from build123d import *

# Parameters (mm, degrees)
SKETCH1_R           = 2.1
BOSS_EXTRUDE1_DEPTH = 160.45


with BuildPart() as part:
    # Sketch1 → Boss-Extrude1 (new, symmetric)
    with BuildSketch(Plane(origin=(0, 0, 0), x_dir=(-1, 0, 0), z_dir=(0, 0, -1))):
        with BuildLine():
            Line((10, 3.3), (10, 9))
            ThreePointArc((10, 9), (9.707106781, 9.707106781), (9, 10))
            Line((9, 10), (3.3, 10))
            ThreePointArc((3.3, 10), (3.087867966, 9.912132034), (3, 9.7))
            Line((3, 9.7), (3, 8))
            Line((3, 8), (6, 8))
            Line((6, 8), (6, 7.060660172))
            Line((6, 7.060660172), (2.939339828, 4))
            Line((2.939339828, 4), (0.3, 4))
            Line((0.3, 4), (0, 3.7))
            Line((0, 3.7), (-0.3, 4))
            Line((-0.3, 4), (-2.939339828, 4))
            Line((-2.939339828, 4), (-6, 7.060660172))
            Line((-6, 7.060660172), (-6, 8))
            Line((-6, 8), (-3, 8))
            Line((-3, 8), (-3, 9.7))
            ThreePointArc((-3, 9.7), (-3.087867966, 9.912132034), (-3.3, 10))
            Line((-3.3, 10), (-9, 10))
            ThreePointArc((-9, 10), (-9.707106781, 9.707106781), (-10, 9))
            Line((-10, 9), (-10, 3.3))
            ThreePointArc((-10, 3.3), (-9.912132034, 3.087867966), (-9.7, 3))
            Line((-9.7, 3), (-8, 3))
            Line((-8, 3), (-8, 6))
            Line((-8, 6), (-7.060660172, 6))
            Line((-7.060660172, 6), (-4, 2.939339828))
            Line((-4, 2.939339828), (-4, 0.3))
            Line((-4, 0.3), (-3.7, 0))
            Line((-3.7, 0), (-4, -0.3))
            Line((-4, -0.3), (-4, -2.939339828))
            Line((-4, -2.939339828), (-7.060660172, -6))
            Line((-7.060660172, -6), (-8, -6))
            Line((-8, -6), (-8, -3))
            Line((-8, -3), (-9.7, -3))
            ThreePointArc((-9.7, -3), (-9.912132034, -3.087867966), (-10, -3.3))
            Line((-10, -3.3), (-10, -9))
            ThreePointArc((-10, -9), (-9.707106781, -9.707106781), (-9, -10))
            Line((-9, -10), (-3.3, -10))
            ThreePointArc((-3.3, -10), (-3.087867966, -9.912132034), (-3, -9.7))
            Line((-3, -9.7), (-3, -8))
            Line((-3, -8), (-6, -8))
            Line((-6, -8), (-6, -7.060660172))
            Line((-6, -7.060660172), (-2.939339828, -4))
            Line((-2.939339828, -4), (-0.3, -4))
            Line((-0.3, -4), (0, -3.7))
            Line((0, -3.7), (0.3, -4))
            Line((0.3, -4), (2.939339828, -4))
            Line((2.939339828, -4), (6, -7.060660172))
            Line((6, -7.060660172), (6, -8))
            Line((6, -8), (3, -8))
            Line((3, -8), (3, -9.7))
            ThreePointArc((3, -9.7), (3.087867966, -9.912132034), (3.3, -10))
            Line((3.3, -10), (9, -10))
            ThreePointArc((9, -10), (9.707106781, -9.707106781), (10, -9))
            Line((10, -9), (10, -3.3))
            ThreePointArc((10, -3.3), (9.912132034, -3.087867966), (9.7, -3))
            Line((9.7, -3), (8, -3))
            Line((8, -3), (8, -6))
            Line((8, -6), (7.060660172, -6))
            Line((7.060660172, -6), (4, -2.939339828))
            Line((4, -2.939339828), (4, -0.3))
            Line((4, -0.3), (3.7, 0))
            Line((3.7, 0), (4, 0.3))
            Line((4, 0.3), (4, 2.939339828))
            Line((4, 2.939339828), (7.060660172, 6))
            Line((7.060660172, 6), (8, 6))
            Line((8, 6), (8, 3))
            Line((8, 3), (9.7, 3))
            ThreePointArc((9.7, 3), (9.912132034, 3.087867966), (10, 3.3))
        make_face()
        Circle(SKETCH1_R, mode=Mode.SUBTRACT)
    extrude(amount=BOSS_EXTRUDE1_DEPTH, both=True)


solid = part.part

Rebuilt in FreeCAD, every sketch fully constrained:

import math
import FreeCAD as App
import Part
import Sketcher

V = App.Vector
Q = App.Units.Quantity

doc = App.newDocument("Part")
body = doc.addObject("PartDesign::Body", "Body")

sketch1 = body.newObject("Sketcher::SketchObject", "Sketch")
sketch1.AttachmentSupport = (doc.getObject("XY_Plane"), [""])
sketch1.MapMode = "FlatFace"
sketch1.addGeometry([
    Part.LineSegment(V(-10, 3.3, 0), V(-10, 9, 0)),
    Part.ArcOfCircle(Part.Circle(V(-9, 9, 0), V(0, 0, 1), 1), math.radians(90), math.radians(180)),
    Part.LineSegment(V(-9, 10, 0), V(-3.3, 10, 0)),
    Part.ArcOfCircle(Part.Circle(V(-3.3, 9.7, 0), V(0, 0, 1), 0.3), math.radians(0), math.radians(90)),
    Part.LineSegment(V(-3, 9.7, 0), V(-3, 8, 0)),
    Part.LineSegment(V(-3, 8, 0), V(-6, 8, 0)),
    Part.LineSegment(V(-6, 8, 0), V(-6, 7.06, 0)),
    Part.LineSegment(V(-6, 7.06, 0), V(-2.94, 4, 0)),
    Part.LineSegment(V(-2.94, 4, 0), V(-0.3, 4, 0)),
    Part.LineSegment(V(-0.3, 4, 0), V(0, 3.7, 0)),
    Part.LineSegment(V(0, 3.7, 0), V(0.3, 4, 0)),
    Part.LineSegment(V(0.3, 4, 0), V(2.94, 4, 0)),
    Part.LineSegment(V(2.94, 4, 0), V(6, 7.06, 0)),
    Part.LineSegment(V(6, 7.06, 0), V(6, 8, 0)),
    Part.LineSegment(V(6, 8, 0), V(3, 8, 0)),
    Part.LineSegment(V(3, 8, 0), V(3, 9.7, 0)),
    Part.ArcOfCircle(Part.Circle(V(3.3, 9.7, 0), V(0, 0, 1), 0.3), math.radians(90), math.radians(180)),
    Part.LineSegment(V(3.3, 10, 0), V(9, 10, 0)),
    Part.ArcOfCircle(Part.Circle(V(9, 9, 0), V(0, 0, 1), 1), math.radians(0), math.radians(90)),
    Part.LineSegment(V(10, 9, 0), V(10, 3.3, 0)),
    Part.ArcOfCircle(Part.Circle(V(9.7, 3.3, 0), V(0, 0, 1), 0.3), math.radians(-90), math.radians(0)),
    Part.LineSegment(V(9.7, 3, 0), V(8, 3, 0)),
    Part.LineSegment(V(8, 3, 0), V(8, 6, 0)),
    Part.LineSegment(V(8, 6, 0), V(7.06, 6, 0)),
    Part.LineSegment(V(7.06, 6, 0), V(4, 2.94, 0)),
    Part.LineSegment(V(4, 2.94, 0), V(4, 0.3, 0)),
    Part.LineSegment(V(4, 0.3, 0), V(3.7, 0, 0)),
    Part.LineSegment(V(3.7, 0, 0), V(4, -0.3, 0)),
    Part.LineSegment(V(4, -0.3, 0), V(4, -2.94, 0)),
    Part.LineSegment(V(4, -2.94, 0), V(7.06, -6, 0)),
    Part.LineSegment(V(7.06, -6, 0), V(8, -6, 0)),
    Part.LineSegment(V(8, -6, 0), V(8, -3, 0)),
    Part.LineSegment(V(8, -3, 0), V(9.7, -3, 0)),
    Part.ArcOfCircle(Part.Circle(V(9.7, -3.3, 0), V(0, 0, 1), 0.3), math.radians(0), math.radians(90)),
    Part.LineSegment(V(10, -3.3, 0), V(10, -9, 0)),
    Part.ArcOfCircle(Part.Circle(V(9, -9, 0), V(0, 0, 1), 1), math.radians(-90), math.radians(0)),
    Part.LineSegment(V(9, -10, 0), V(3.3, -10, 0)),
    Part.ArcOfCircle(Part.Circle(V(3.3, -9.7, 0), V(0, 0, 1), 0.3), math.radians(-180), math.radians(-90)),
    Part.LineSegment(V(3, -9.7, 0), V(3, -8, 0)),
    Part.LineSegment(V(3, -8, 0), V(6, -8, 0)),
    Part.LineSegment(V(6, -8, 0), V(6, -7.06, 0)),
    Part.LineSegment(V(6, -7.06, 0), V(2.94, -4, 0)),
    Part.LineSegment(V(2.94, -4, 0), V(0.3, -4, 0)),
    Part.LineSegment(V(0.3, -4, 0), V(0, -3.7, 0)),
    Part.LineSegment(V(0, -3.7, 0), V(-0.3, -4, 0)),
    Part.LineSegment(V(-0.3, -4, 0), V(-2.94, -4, 0)),
    Part.LineSegment(V(-2.94, -4, 0), V(-6, -7.06, 0)),
    Part.LineSegment(V(-6, -7.06, 0), V(-6, -8, 0)),
    Part.LineSegment(V(-6, -8, 0), V(-3, -8, 0)),
    Part.LineSegment(V(-3, -8, 0), V(-3, -9.7, 0)),
    Part.ArcOfCircle(Part.Circle(V(-3.3, -9.7, 0), V(0, 0, 1), 0.3), math.radians(-90), math.radians(0)),
    Part.LineSegment(V(-3.3, -10, 0), V(-9, -10, 0)),
    Part.ArcOfCircle(Part.Circle(V(-9, -9, 0), V(0, 0, 1), 1), math.radians(-180), math.radians(-90)),
    Part.LineSegment(V(-10, -9, 0), V(-10, -3.3, 0)),
    Part.ArcOfCircle(Part.Circle(V(-9.7, -3.3, 0), V(0, 0, 1), 0.3), math.radians(90), math.radians(180)),
    Part.LineSegment(V(-9.7, -3, 0), V(-8, -3, 0)),
    Part.LineSegment(V(-8, -3, 0), V(-8, -6, 0)),
    Part.LineSegment(V(-8, -6, 0), V(-7.06, -6, 0)),
    Part.LineSegment(V(-7.06, -6, 0), V(-4, -2.94, 0)),
    Part.LineSegment(V(-4, -2.94, 0), V(-4, -0.3, 0)),
    Part.LineSegment(V(-4, -0.3, 0), V(-3.7, 0, 0)),
    Part.LineSegment(V(-3.7, 0, 0), V(-4, 0.3, 0)),
    Part.LineSegment(V(-4, 0.3, 0), V(-4, 2.94, 0)),
    Part.LineSegment(V(-4, 2.94, 0), V(-7.06, 6, 0)),
    Part.LineSegment(V(-7.06, 6, 0), V(-8, 6, 0)),
    Part.LineSegment(V(-8, 6, 0), V(-8, 3, 0)),
    Part.LineSegment(V(-8, 3, 0), V(-9.7, 3, 0)),
    Part.ArcOfCircle(Part.Circle(V(-9.7, 3.3, 0), V(0, 0, 1), 0.3), math.radians(-180), math.radians(-90)),
    Part.Circle(V(0, 0, 0), V(0, 0, 1), 2.1),
], False)
sketch1.addConstraint([
    Sketcher.Constraint("Tangent", 0, 2, 1, 2),
    Sketcher.Constraint("Tangent", 1, 1, 2, 1),
    Sketcher.Constraint("Tangent", 2, 2, 3, 2),
    Sketcher.Constraint("Tangent", 3, 1, 4, 1),
    Sketcher.Constraint("Coincident", 4, 2, 5, 1),
    Sketcher.Constraint("Coincident", 5, 2, 6, 1),
    Sketcher.Constraint("Coincident", 6, 2, 7, 1),
    Sketcher.Constraint("Coincident", 7, 2, 8, 1),
    Sketcher.Constraint("Coincident", 8, 2, 9, 1),
    Sketcher.Constraint("Coincident", 9, 2, 10, 1),
    Sketcher.Constraint("Coincident", 10, 2, 11, 1),
    Sketcher.Constraint("Coincident", 11, 2, 12, 1),
    Sketcher.Constraint("Coincident", 12, 2, 13, 1),
    Sketcher.Constraint("Coincident", 13, 2, 14, 1),
    Sketcher.Constraint("Coincident", 14, 2, 15, 1),
    Sketcher.Constraint("Tangent", 15, 2, 16, 2),
    Sketcher.Constraint("Tangent", 16, 1, 17, 1),
    Sketcher.Constraint("Tangent", 17, 2, 18, 2),
    Sketcher.Constraint("Tangent", 18, 1, 19, 1),
    Sketcher.Constraint("Tangent", 19, 2, 20, 2),
    Sketcher.Constraint("Tangent", 20, 1, 21, 1),
    Sketcher.Constraint("Coincident", 21, 2, 22, 1),
    Sketcher.Constraint("Coincident", 22, 2, 23, 1),
    Sketcher.Constraint("Coincident", 23, 2, 24, 1),
    Sketcher.Constraint("Coincident", 24, 2, 25, 1),
    Sketcher.Constraint("Coincident", 25, 2, 26, 1),
    Sketcher.Constraint("Coincident", 26, 2, 27, 1),
    Sketcher.Constraint("Coincident", 27, 2, 28, 1),
    Sketcher.Constraint("Coincident", 28, 2, 29, 1),
    Sketcher.Constraint("Coincident", 29, 2, 30, 1),
    Sketcher.Constraint("Coincident", 30, 2, 31, 1),
    Sketcher.Constraint("Coincident", 31, 2, 32, 1),
    Sketcher.Constraint("Tangent", 32, 2, 33, 2),
    Sketcher.Constraint("Tangent", 33, 1, 34, 1),
    Sketcher.Constraint("Tangent", 34, 2, 35, 2),
    Sketcher.Constraint("Tangent", 35, 1, 36, 1),
    Sketcher.Constraint("Tangent", 36, 2, 37, 2),
    Sketcher.Constraint("Tangent", 37, 1, 38, 1),
    Sketcher.Constraint("Coincident", 38, 2, 39, 1),
    Sketcher.Constraint("Coincident", 39, 2, 40, 1),
    Sketcher.Constraint("Coincident", 40, 2, 41, 1),
    Sketcher.Constraint("Coincident", 41, 2, 42, 1),
    Sketcher.Constraint("Coincident", 42, 2, 43, 1),
    Sketcher.Constraint("Coincident", 43, 2, 44, 1),
    Sketcher.Constraint("Coincident", 44, 2, 45, 1),
    Sketcher.Constraint("Coincident", 45, 2, 46, 1),
    Sketcher.Constraint("Coincident", 46, 2, 47, 1),
    Sketcher.Constraint("Coincident", 47, 2, 48, 1),
    Sketcher.Constraint("Coincident", 48, 2, 49, 1),
    Sketcher.Constraint("Tangent", 49, 2, 50, 2),
    Sketcher.Constraint("Tangent", 50, 1, 51, 1),
    Sketcher.Constraint("Tangent", 51, 2, 52, 2),
    Sketcher.Constraint("Tangent", 52, 1, 53, 1),
    Sketcher.Constraint("Tangent", 53, 2, 54, 2),
    Sketcher.Constraint("Tangent", 54, 1, 55, 1),
    Sketcher.Constraint("Coincident", 55, 2, 56, 1),
    Sketcher.Constraint("Coincident", 56, 2, 57, 1),
    Sketcher.Constraint("Coincident", 57, 2, 58, 1),
    Sketcher.Constraint("Coincident", 58, 2, 59, 1),
    Sketcher.Constraint("Coincident", 59, 2, 60, 1),
    Sketcher.Constraint("Coincident", 60, 2, 61, 1),
    Sketcher.Constraint("Coincident", 61, 2, 62, 1),
    Sketcher.Constraint("Coincident", 62, 2, 63, 1),
    Sketcher.Constraint("Coincident", 63, 2, 64, 1),
    Sketcher.Constraint("Coincident", 64, 2, 65, 1),
    Sketcher.Constraint("Coincident", 65, 2, 66, 1),
    Sketcher.Constraint("Tangent", 66, 2, 67, 2),
    Sketcher.Constraint("Tangent", 67, 1, 0, 1),
    Sketcher.Constraint("Vertical", 0),
    Sketcher.Constraint("Horizontal", 2),
    Sketcher.Constraint("Vertical", 4),
    Sketcher.Constraint("Horizontal", 5),
    Sketcher.Constraint("Vertical", 6),
    Sketcher.Constraint("Horizontal", 8),
    Sketcher.Constraint("Horizontal", 11),
    Sketcher.Constraint("Vertical", 13),
    Sketcher.Constraint("Horizontal", 14),
    Sketcher.Constraint("Vertical", 15),
    Sketcher.Constraint("Horizontal", 17),
    Sketcher.Constraint("Vertical", 19),
    Sketcher.Constraint("Horizontal", 21),
    Sketcher.Constraint("Vertical", 22),
    Sketcher.Constraint("Horizontal", 23),
    Sketcher.Constraint("Vertical", 25),
    Sketcher.Constraint("Vertical", 28),
    Sketcher.Constraint("Horizontal", 30),
    Sketcher.Constraint("Vertical", 31),
    Sketcher.Constraint("Horizontal", 32),
    Sketcher.Constraint("Vertical", 34),
    Sketcher.Constraint("Horizontal", 36),
    Sketcher.Constraint("Vertical", 38),
    Sketcher.Constraint("Horizontal", 39),
    Sketcher.Constraint("Vertical", 40),
    Sketcher.Constraint("Horizontal", 42),
    Sketcher.Constraint("Horizontal", 45),
    Sketcher.Constraint("Vertical", 47),
    Sketcher.Constraint("Horizontal", 48),
    Sketcher.Constraint("Vertical", 49),
    Sketcher.Constraint("Horizontal", 51),
    Sketcher.Constraint("Vertical", 53),
    Sketcher.Constraint("Horizontal", 55),
    Sketcher.Constraint("Vertical", 56),
    Sketcher.Constraint("Horizontal", 57),
    Sketcher.Constraint("Vertical", 59),
    Sketcher.Constraint("Vertical", 62),
    Sketcher.Constraint("Horizontal", 64),
    Sketcher.Constraint("Vertical", 65),
    Sketcher.Constraint("Horizontal", 66),
    Sketcher.Constraint("Coincident", 68, 3, -1, 1),
    Sketcher.Constraint("Equal", 3, 16),
    Sketcher.Constraint("Equal", 1, 18),
    Sketcher.Constraint("Equal", 16, 20),
    Sketcher.Constraint("Equal", 20, 33),
    Sketcher.Constraint("Equal", 18, 35),
    Sketcher.Constraint("Equal", 33, 37),
    Sketcher.Constraint("Equal", 37, 50),
    Sketcher.Constraint("Equal", 35, 52),
    Sketcher.Constraint("Equal", 50, 54),
    Sketcher.Constraint("Equal", 54, 67),
    Sketcher.Constraint("Symmetric", 1, 3, 35, 3, -1, 1),
    Sketcher.Constraint("Symmetric", 16, 3, 50, 3, -1, 1),
    Sketcher.Constraint("Symmetric", 20, 3, 54, 3, -1, 1),
    Sketcher.Constraint("Symmetric", 4, 2, 38, 2, -1, 1),
    Sketcher.Constraint("Symmetric", 6, 2, 40, 2, -1, 1),
    Sketcher.Constraint("Symmetric", 7, 2, 41, 2, -1, 1),
    Sketcher.Constraint("Symmetric", 9, 2, 43, 2, -1, 1),
    Sketcher.Constraint("Symmetric", 10, 2, 44, 2, -1, 1),
    Sketcher.Constraint("Symmetric", 12, 2, 46, 2, -1, 1),
    Sketcher.Constraint("Symmetric", 22, 2, 56, 2, -1, 1),
    Sketcher.Constraint("Symmetric", 24, 2, 58, 2, -1, 1),
    Sketcher.Constraint("Symmetric", 26, 2, 60, 2, -1, 1),
    Sketcher.Constraint("Symmetric", 27, 2, 61, 2, -1, 1),
    Sketcher.Constraint("Symmetric", 29, 2, 63, 2, -1, 1),
    Sketcher.Constraint("Symmetric", 31, 2, 65, 2, -1, 1),
    Sketcher.Constraint("Symmetric", 3, 3, 16, 3, -2),
    Sketcher.Constraint("Symmetric", 33, 3, 54, 3, -2),
    Sketcher.Constraint("Symmetric", 8, 2, 10, 2, -2),
    Sketcher.Constraint("Symmetric", 6, 2, 12, 2, -2),
    Sketcher.Constraint("Symmetric", 30, 2, 56, 2, -2),
    Sketcher.Constraint("Symmetric", 28, 2, 58, 2, -2),
    Sketcher.Constraint("PointOnObject", 9, 2, -2),
    Sketcher.Constraint("PointOnObject", 26, 2, -1),
    Sketcher.Constraint("Parallel", 7, 9),
    Sketcher.Constraint("Perpendicular", 9, 10),
    Sketcher.Constraint("Parallel", 10, 12),
    Sketcher.Constraint("Parallel", 12, 24),
    Sketcher.Constraint("Parallel", 24, 26),
    Sketcher.Constraint("Perpendicular", 26, 27),
    Sketcher.Constraint("Parallel", 27, 29),
    Sketcher.Constraint("Parallel", 41, 43),
    Sketcher.Constraint("Parallel", 44, 46),
    Sketcher.Constraint("Parallel", 46, 58),
    Sketcher.Constraint("Parallel", 58, 60),
    Sketcher.Constraint("Parallel", 61, 63),
    Sketcher.Constraint("Horizontal", 5, 2, 13, 2),
    Sketcher.Constraint("Horizontal", 39, 2, 47, 2),
    Sketcher.Constraint("Equal", 51, 0),
    Sketcher.Constraint("Equal", 66, 4),
    Sketcher.Constraint("Equal", 64, 6),
    Sketcher.Constraint("Equal", 48, 22),
    Sketcher.Constraint("Equal", 45, 25),
    Sketcher.Constraint("Equal", 12, 24),
    Sketcher.Constraint("Equal", 10, 26),
    Sketcher.Constraint("Radius", 1, Q("1 mm")),
    Sketcher.Constraint("Diameter", 68, Q("4.2 mm")),
    Sketcher.Constraint("Radius", 3, Q("0.3 mm")),
    Sketcher.Constraint("DistanceX", 5, 2, 5, 1, Q("3 mm")),
    Sketcher.Constraint("DistanceX", 2, 1, 2, 2, Q("5.7 mm")),
    Sketcher.Constraint("DistanceX", 21, 2, 21, 1, Q("1.7 mm")),
    Sketcher.Constraint("DistanceX", 1, 3, -1, 1, Q("9 mm")),
    Sketcher.Constraint("DistanceY", -1, 1, 7, 2, Q("4 mm")),
    Sketcher.Constraint("DistanceX", 8, 2, -1, 1, Q("0.3 mm")),
    Sketcher.Constraint("DistanceX", 8, 1, 8, 2, Q("2.63934 mm")),
])
pad1 = body.newObject("PartDesign::Pad", "Pad")
pad1.Profile = sketch1
pad1.Length = 320.9
pad1.Midplane = True

doc.recompute()
